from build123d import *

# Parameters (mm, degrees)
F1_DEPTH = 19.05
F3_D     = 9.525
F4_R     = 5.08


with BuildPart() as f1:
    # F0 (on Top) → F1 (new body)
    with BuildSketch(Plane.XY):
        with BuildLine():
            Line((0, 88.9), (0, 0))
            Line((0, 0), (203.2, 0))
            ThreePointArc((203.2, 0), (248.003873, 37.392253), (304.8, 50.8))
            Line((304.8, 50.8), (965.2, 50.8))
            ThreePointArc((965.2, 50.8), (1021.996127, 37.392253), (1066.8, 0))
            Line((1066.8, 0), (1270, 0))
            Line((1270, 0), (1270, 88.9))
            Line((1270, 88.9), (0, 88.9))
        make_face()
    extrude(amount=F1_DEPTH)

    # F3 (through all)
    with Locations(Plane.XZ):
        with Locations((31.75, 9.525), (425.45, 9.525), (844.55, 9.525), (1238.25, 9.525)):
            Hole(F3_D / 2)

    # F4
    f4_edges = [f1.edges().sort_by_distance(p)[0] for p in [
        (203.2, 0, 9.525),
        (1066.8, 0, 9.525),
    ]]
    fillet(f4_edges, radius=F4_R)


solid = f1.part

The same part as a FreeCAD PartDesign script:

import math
import FreeCAD as App
import Part
import Sketcher
Q = App.Units.Quantity


def edges_at(feature, points):
    """Names of the edges that pass closest to the given points."""
    edges = feature.Shape.Edges
    near = lambda p: min(range(len(edges)), key=lambda i: edges[i].distToShape(Part.Vertex(*p))[0])
    return sorted({f"Edge{near(p) + 1}" for p in points})

doc = App.newDocument("Part")
body = doc.addObject("PartDesign::Body", "Body")

sketch1 = doc.addObject("Sketcher::SketchObject", "Sketch")
body.addObject(sketch1)
sketch1.AttachmentSupport = (doc.XY_Plane, [""])
sketch1.MapMode = "FlatFace"
sketch1.addGeometry(Part.LineSegment(App.Vector(0, 89, 0), App.Vector(0, 0, 0)), False)
sketch1.addGeometry(Part.LineSegment(App.Vector(0, 0, 0), App.Vector(203, 0, 0)), False)
sketch1.addGeometry(Part.ArcOfCircle(Part.Circle(App.Vector(305, -76, 0), App.Vector(0, 0, 1), 127), math.radians(90), math.radians(143)), False)
sketch1.addGeometry(Part.LineSegment(App.Vector(305, 51, 0), App.Vector(965, 51, 0)), False)
sketch1.addGeometry(Part.ArcOfCircle(Part.Circle(App.Vector(965, -76, 0), App.Vector(0, 0, 1), 127), math.radians(37), math.radians(90)), False)
sketch1.addGeometry(Part.LineSegment(App.Vector(1067, 0, 0), App.Vector(1270, 0, 0)), False)
sketch1.addGeometry(Part.LineSegment(App.Vector(1270, 0, 0), App.Vector(1270, 89, 0)), False)
sketch1.addGeometry(Part.LineSegment(App.Vector(1270, 89, 0), App.Vector(0, 89, 0)), False)
sketch1.addConstraint(Sketcher.Constraint("Coincident", 0, 2, 1, 1))
sketch1.addConstraint(Sketcher.Constraint("Coincident", 1, 2, 2, 2))
sketch1.addConstraint(Sketcher.Constraint("Tangent", 2, 1, 3, 1))
sketch1.addConstraint(Sketcher.Constraint("Tangent", 3, 2, 4, 2))
sketch1.addConstraint(Sketcher.Constraint("Coincident", 4, 1, 5, 1))
sketch1.addConstraint(Sketcher.Constraint("Coincident", 5, 2, 6, 1))
sketch1.addConstraint(Sketcher.Constraint("Coincident", 6, 2, 7, 1))
sketch1.addConstraint(Sketcher.Constraint("Coincident", 7, 2, 0, 1))
sketch1.addConstraint(Sketcher.Constraint("Vertical", 0))
sketch1.addConstraint(Sketcher.Constraint("Horizontal", 1))
sketch1.addConstraint(Sketcher.Constraint("Horizontal", 3))
sketch1.addConstraint(Sketcher.Constraint("Horizontal", 5))
sketch1.addConstraint(Sketcher.Constraint("Vertical", 6))
sketch1.addConstraint(Sketcher.Constraint("Horizontal", 7))
sketch1.addConstraint(Sketcher.Constraint("Coincident", 0, 2, -1, 1))
sketch1.addConstraint(Sketcher.Constraint("Equal", 2, 4))
sketch1.addConstraint(Sketcher.Constraint("PointOnObject", 4, 1, -1))
sketch1.addConstraint(Sketcher.Constraint("Equal", 1, 5))
sketch1.addConstraint(Sketcher.Constraint("Radius", 2, Q("5 in")))
sketch1.addConstraint(Sketcher.Constraint("DistanceX", 1, 1, 1, 2, Q("8 in")))
sketch1.addConstraint(Sketcher.Constraint("DistanceX", 3, 1, 3, 2, Q("26 in")))
sketch1.addConstraint(Sketcher.Constraint("DistanceX", 7, 2, 7, 1, Q("50 in")))
sketch1.addConstraint(Sketcher.Constraint("DistanceY", 0, 2, 0, 1, Q("3.5 in")))
pad1 = doc.addObject("PartDesign::Pad", "Pad")
body.addObject(pad1)
pad1.Profile = sketch1
pad1.Length = Q("0.75 in")

sketch2 = doc.addObject("Sketcher::SketchObject", "Sketch001")
body.addObject(sketch2)
sketch2.AttachmentSupport = (doc.XZ_Plane, [""])
sketch2.MapMode = "FlatFace"
sketch2.addGeometry(Part.Circle(App.Vector(31.8, 9.5, 0), App.Vector(0, 0, 1), 4.8), False)
sketch2.addGeometry(Part.Circle(App.Vector(425.4, 9.5, 0), App.Vector(0, 0, 1), 4.8), False)
sketch2.addGeometry(Part.Circle(App.Vector(844.5, 9.5, 0), App.Vector(0, 0, 1), 4.8), False)
sketch2.addGeometry(Part.Circle(App.Vector(1238.2, 9.5, 0), App.Vector(0, 0, 1), 4.8), False)
sketch2.addConstraint(Sketcher.Constraint("Equal", 0, 1))
sketch2.addConstraint(Sketcher.Constraint("Equal", 1, 2))
sketch2.addConstraint(Sketcher.Constraint("Equal", 2, 3))
sketch2.addConstraint(Sketcher.Constraint("Horizontal", 0, 3, 1, 3))
sketch2.addConstraint(Sketcher.Constraint("Horizontal", 1, 3, 2, 3))
sketch2.addConstraint(Sketcher.Constraint("Horizontal", 2, 3, 3, 3))
sketch2.addConstraint(Sketcher.Constraint("Diameter", 0, Q("0.375 in")))
sketch2.addConstraint(Sketcher.Constraint("DistanceX", 0, 3, 2, 3, Q("32 in")))
sketch2.addConstraint(Sketcher.Constraint("DistanceX", 1, 3, 3, 3, Q("32 in")))
sketch2.addConstraint(Sketcher.Constraint("DistanceX", 0, 3, 1, 3, Q("15.5 in")))
sketch2.addConstraint(Sketcher.Constraint("DistanceX", -1, 1, 0, 3, Q("1.25 in")))
sketch2.addConstraint(Sketcher.Constraint("DistanceY", -1, 1, 0, 3, Q("0.375 in")))
doc.recompute()
hole = doc.addObject("PartDesign::Hole", "Hole")
body.addObject(hole)
hole.Profile = sketch2
hole.ThreadType = "None"
hole.Diameter = Q("0.375 in")
hole.DepthType = "ThroughAll"
doc.recompute()

fillet = doc.addObject("PartDesign::Fillet", "Fillet")
body.addObject(fillet)
fillet.Base = (hole, edges_at(hole, [(203.2, 0, 9.525), (1066.8, 0, 9.525)]))
fillet.Radius = Q("0.2 in")

doc.recompute()
